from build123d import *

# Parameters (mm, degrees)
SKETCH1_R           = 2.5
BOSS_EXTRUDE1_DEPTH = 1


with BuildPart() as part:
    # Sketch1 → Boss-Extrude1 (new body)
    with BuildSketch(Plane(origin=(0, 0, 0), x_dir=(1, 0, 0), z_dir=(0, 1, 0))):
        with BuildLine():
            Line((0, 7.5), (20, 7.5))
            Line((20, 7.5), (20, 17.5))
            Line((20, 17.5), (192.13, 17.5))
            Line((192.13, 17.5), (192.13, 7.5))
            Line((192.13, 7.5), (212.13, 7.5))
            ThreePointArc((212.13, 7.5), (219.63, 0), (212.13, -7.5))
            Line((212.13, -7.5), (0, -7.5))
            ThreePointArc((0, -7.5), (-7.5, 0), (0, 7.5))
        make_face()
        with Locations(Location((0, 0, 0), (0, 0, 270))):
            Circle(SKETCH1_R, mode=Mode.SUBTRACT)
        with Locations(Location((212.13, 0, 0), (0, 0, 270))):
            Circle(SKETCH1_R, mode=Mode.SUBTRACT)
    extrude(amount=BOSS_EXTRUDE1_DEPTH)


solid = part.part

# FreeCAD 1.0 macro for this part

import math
import FreeCAD as App
import Part
import Sketcher
Q = App.Units.Quantity

doc = App.newDocument("Part")
params = doc.addObject("Spreadsheet::Sheet", "Params")
for row, (alias, value) in enumerate([
    ("sketch1_diameter", "5 mm"),
    ("sketch1_radius", "7.5 mm"),
    ("sketch1_width", "20 mm"),
    ("sketch1_height", "10 mm"),
    ("sketch1_width2", "212.13 mm"),
    ("pad1_length", "1 mm"),
], start=1):
    params.set(f"A{row}", alias)
    params.set(f"B{row}", "=" + value)
    params.setAlias(f"B{row}", alias)

body = doc.addObject("PartDesign::Body", "Body")

# Sketch on XZ plane
sketch1 = body.newObject("Sketcher::SketchObject", "Sketch")
sketch1.AttachmentSupport = (doc.getObject("XZ_Plane"), [""])
sketch1.MapMode = "FlatFace"
sketch1.addGeometry(Part.LineSegment(App.Vector(20, -7.5, 0), App.Vector(0, -7.5, 0)), False)
sketch1.addGeometry(Part.ArcOfCircle(Part.Circle(App.Vector(0, 0, 0), App.Vector(0, 0, 1), 7.5), math.radians(90), math.radians(270)), False)
sketch1.addGeometry(Part.LineSegment(App.Vector(0, 7.5, 0), App.Vector(212.1, 7.5, 0)), False)
sketch1.addGeometry(Part.ArcOfCircle(Part.Circle(App.Vector(212.1, 0, 0), App.Vector(0, 0, 1), 7.5), math.radians(-90), math.radians(90)), False)
sketch1.addGeometry(Part.LineSegment(App.Vector(212.1, -7.5, 0), App.Vector(192.1, -7.5, 0)), False)
sketch1.addGeometry(Part.LineSegment(App.Vector(192.1, -7.5, 0), App.Vector(192.1, -17.5, 0)), False)
sketch1.addGeometry(Part.LineSegment(App.Vector(192.1, -17.5, 0), App.Vector(20, -17.5, 0)), False)
sketch1.addGeometry(Part.LineSegment(App.Vector(20, -17.5, 0), App.Vector(20, -7.5, 0)), False)
sketch1.addGeometry(Part.Circle(App.Vector(212.1, 0, 0), App.Vector(0, 0, 1), 2.5), False)
sketch1.addGeometry(Part.Circle(App.Vector(0, 0, 0), App.Vector(0, 0, 1), 2.5), False)
sketch1.addConstraint(Sketcher.Constraint("Tangent", 0, 2, 1, 2))
sketch1.addConstraint(Sketcher.Constraint("Tangent", 1, 1, 2, 1))
sketch1.addConstraint(Sketcher.Constraint("Tangent", 2, 2, 3, 2))
sketch1.addConstraint(Sketcher.Constraint("Tangent", 3, 1, 4, 1))
sketch1.addConstraint(Sketcher.Constraint("Coincident", 4, 2, 5, 1))
sketch1.addConstraint(Sketcher.Constraint("Coincident", 5, 2, 6, 1))
sketch1.addConstraint(Sketcher.Constraint("Coincident", 6, 2, 7, 1))
sketch1.addConstraint(Sketcher.Constraint("Coincident", 7, 2, 0, 1))
sketch1.addConstraint(Sketcher.Constraint("Horizontal", 0))
sketch1.addConstraint(Sketcher.Constraint("Horizontal", 2))
sketch1.addConstraint(Sketcher.Constraint("Horizontal", 4))
sketch1.addConstraint(Sketcher.Constraint("Vertical", 5))
sketch1.addConstraint(Sketcher.Constraint("Horizontal", 6))
sketch1.addConstraint(Sketcher.Constraint("Vertical", 7))
sketch1.addConstraint(Sketcher.Constraint("Coincident", 1, 3, -1, 1))
sketch1.addConstraint(Sketcher.Constraint("Coincident", 9, 3, -1, 1))
sketch1.addConstraint(Sketcher.Constraint("Coincident", 8, 3, 3, 3))
sketch1.addConstraint(Sketcher.Constraint("Equal", 1, 3))
sketch1.addConstraint(Sketcher.Constraint("Equal", 8, 9))
sketch1.addConstraint(Sketcher.Constraint("Equal", 0, 4))
sketch1.addConstraint(Sketcher.Constraint("Diameter", 8, Q("5 mm")))
sketch1.addConstraint(Sketcher.Constraint("Radius", 1, Q("7.5 mm")))
sketch1.addConstraint(Sketcher.Constraint("DistanceX", 0, 2, 0, 1, Q("20 mm")))
sketch1.addConstraint(Sketcher.Constraint("DistanceY", 5, 2, 5, 1, Q("10 mm")))
sketch1.addConstraint(Sketcher.Constraint("DistanceX", 2, 1, 2, 2, Q("212.13 mm")))
sketch1.setExpression("Constraints[20]", "Params.sketch1_diameter")
sketch1.setExpression("Constraints[21]", "Params.sketch1_radius")
sketch1.setExpression("Constraints[22]", "Params.sketch1_width")
sketch1.setExpression("Constraints[23]", "Params.sketch1_height")
sketch1.setExpression("Constraints[24]", "Params.sketch1_width2")
pad1 = body.newObject("PartDesign::Pad", "Pad")
pad1.Profile = sketch1
pad1.setExpression("Length", "Params.pad1_length")
pad1.Reversed = True

doc.recompute()
